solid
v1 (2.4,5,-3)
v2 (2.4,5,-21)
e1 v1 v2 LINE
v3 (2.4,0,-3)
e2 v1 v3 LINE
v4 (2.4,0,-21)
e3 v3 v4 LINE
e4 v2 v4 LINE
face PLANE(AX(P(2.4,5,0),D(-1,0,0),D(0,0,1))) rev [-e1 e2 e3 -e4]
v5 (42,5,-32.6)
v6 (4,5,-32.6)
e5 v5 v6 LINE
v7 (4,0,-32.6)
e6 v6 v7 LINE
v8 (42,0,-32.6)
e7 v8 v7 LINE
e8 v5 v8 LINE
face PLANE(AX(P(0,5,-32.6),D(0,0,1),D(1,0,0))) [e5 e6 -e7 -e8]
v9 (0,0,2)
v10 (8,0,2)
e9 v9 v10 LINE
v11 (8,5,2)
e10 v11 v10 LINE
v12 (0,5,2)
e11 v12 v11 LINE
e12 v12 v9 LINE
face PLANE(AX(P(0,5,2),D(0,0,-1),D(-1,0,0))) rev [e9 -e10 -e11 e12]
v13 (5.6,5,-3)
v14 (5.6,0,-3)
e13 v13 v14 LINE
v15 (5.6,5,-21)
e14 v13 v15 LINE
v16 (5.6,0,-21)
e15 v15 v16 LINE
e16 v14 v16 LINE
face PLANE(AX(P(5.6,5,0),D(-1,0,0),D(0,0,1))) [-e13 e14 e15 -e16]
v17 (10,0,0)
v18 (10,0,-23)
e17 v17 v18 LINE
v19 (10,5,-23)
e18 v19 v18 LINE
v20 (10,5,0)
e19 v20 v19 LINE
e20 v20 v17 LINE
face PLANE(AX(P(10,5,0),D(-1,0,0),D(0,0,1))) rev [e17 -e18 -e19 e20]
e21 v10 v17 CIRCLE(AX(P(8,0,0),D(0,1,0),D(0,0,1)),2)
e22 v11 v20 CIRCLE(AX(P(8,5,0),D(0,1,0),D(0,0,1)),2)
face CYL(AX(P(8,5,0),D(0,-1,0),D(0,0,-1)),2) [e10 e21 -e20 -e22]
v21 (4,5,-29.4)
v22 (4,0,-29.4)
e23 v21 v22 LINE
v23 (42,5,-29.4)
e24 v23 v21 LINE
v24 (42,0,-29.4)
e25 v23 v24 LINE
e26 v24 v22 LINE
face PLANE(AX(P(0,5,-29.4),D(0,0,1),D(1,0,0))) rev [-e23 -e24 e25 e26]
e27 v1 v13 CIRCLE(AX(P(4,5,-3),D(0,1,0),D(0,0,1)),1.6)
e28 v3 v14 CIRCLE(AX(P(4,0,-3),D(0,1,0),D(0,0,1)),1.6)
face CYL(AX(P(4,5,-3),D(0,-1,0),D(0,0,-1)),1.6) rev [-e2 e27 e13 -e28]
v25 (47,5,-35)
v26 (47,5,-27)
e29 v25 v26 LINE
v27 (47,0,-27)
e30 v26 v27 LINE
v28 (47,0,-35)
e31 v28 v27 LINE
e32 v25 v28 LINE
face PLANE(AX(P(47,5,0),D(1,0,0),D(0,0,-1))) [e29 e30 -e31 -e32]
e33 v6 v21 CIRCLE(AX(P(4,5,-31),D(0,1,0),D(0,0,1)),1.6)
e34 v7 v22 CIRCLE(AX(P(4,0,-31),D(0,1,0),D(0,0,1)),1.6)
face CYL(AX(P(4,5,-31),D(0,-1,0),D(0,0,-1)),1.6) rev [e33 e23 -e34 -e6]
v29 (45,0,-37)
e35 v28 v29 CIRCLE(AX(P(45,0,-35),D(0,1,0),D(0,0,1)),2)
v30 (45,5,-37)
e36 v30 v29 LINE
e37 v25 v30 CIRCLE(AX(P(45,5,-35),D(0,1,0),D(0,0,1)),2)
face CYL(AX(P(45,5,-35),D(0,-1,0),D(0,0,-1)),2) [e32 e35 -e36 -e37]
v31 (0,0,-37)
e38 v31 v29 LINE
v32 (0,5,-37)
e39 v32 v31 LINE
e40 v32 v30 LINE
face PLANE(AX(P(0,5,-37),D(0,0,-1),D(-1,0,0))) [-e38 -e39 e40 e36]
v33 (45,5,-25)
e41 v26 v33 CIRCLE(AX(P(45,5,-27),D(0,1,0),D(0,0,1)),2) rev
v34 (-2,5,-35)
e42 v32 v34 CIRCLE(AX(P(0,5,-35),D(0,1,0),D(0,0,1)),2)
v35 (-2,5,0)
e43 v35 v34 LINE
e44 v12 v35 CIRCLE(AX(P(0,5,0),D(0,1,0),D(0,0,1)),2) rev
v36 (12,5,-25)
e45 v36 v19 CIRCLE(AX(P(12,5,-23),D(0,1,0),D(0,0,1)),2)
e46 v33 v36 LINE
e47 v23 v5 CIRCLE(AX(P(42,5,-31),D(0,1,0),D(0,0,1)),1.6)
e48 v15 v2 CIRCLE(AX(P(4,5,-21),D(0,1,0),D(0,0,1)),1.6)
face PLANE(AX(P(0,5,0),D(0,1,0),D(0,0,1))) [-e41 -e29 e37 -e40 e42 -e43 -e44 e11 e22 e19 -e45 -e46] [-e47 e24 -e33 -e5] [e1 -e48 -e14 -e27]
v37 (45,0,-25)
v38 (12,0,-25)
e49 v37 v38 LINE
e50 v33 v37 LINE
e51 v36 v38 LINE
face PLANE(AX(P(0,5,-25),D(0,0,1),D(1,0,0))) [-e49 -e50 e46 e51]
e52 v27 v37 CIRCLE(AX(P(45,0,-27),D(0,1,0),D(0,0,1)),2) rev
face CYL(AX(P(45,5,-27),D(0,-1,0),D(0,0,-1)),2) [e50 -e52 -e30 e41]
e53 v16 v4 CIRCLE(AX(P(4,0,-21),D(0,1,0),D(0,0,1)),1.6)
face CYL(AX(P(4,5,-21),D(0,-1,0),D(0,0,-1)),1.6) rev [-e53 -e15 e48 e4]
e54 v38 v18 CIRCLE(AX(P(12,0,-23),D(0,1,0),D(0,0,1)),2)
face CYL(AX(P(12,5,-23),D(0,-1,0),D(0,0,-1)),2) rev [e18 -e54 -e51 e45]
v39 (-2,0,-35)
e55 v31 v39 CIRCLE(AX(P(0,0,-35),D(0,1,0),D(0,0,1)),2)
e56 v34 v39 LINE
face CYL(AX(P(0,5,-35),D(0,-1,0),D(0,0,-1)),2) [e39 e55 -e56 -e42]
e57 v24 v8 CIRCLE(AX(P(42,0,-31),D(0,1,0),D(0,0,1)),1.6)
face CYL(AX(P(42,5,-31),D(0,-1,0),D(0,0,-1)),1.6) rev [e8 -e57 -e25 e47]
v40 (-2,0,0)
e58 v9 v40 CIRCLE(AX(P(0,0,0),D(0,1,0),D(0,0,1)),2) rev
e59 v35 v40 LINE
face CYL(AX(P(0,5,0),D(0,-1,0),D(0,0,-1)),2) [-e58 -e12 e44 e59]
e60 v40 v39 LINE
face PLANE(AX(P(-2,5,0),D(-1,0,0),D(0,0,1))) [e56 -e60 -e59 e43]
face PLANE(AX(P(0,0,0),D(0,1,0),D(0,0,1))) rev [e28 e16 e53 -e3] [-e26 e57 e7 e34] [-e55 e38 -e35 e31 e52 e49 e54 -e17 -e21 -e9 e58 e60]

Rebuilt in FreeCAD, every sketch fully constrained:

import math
import FreeCAD as App
import Part
import Sketcher
Q = App.Units.Quantity

doc = App.newDocument("Part")
params = doc.addObject("Spreadsheet::Sheet", "Params")
for row, (alias, value) in enumerate([
    ("sketch1_radius", "2 mm"),
    ("sketch1_radius2", "1.6 mm"),
    ("sketch1_width", "8 mm"),
    ("sketch1_width2", "33 mm"),
    ("sketch1_width3", "38 mm"),
    ("pad1_length", "5 mm"),
], start=1):
    params.set(f"A{row}", alias)
    params.set(f"B{row}", "=" + value)
    params.setAlias(f"B{row}", alias)

body = doc.addObject("PartDesign::Body", "Body")

# Sketch on XZ plane
sketch1 = body.newObject("Sketcher::SketchObject", "Sketch")
sketch1.AttachmentSupport = (doc.getObject("XZ_Plane"), [""])
sketch1.MapMode = "FlatFace"
sketch1.addGeometry([
    Part.LineSegment(App.Vector(0, 2, 0), App.Vector(8, 2, 0)),  # 0
    Part.ArcOfCircle(Part.Circle(App.Vector(8, 0, 0), App.Vector(0, 0, 1), 2), math.radians(0), math.radians(90)),  # 1
    Part.LineSegment(App.Vector(10, 0, 0), App.Vector(10, -23, 0)),  # 2
    Part.ArcOfCircle(Part.Circle(App.Vector(12, -23, 0), App.Vector(0, 0, 1), 2), math.radians(-180), math.radians(-90)),  # 3
    Part.LineSegment(App.Vector(12, -25, 0), App.Vector(45, -25, 0)),  # 4
    Part.ArcOfCircle(Part.Circle(App.Vector(45, -27, 0), App.Vector(0, 0, 1), 2), math.radians(0), math.radians(90)),  # 5
    Part.LineSegment(App.Vector(47, -27, 0), App.Vector(47, -35, 0)),  # 6
    Part.ArcOfCircle(Part.Circle(App.Vector(45, -35, 0), App.Vector(0, 0, 1), 2), math.radians(-90), math.radians(0)),  # 7
    Part.LineSegment(App.Vector(45, -37, 0), App.Vector(0, -37, 0)),  # 8
    Part.ArcOfCircle(Part.Circle(App.Vector(0, -35, 0), App.Vector(0, 0, 1), 2), math.radians(-180), math.radians(-90)),  # 9
    Part.LineSegment(App.Vector(-2, -35, 0), App.Vector(-2, 0, 0)),  # 10
    Part.ArcOfCircle(Part.Circle(App.Vector(0, 0, 0), App.Vector(0, 0, 1), 2), math.radians(90), math.radians(180)),  # 11
    Part.ArcOfCircle(Part.Circle(App.Vector(4, -3, 0), App.Vector(0, 0, 1), 1.6), math.radians(0), math.radians(180)),  # 12
    Part.LineSegment(App.Vector(2.4, -3, 0), App.Vector(2.4, -21, 0)),  # 13
    Part.ArcOfCircle(Part.Circle(App.Vector(4, -21, 0), App.Vector(0, 0, 1), 1.6), math.radians(180), math.radians(360)),  # 14
    Part.LineSegment(App.Vector(5.6, -21, 0), App.Vector(5.6, -3, 0)),  # 15
    Part.ArcOfCircle(Part.Circle(App.Vector(42, -31, 0), App.Vector(0, 0, 1), 1.6), math.radians(-90), math.radians(90)),  # 16
    Part.LineSegment(App.Vector(42, -29.4, 0), App.Vector(4, -29.4, 0)),  # 17
    Part.ArcOfCircle(Part.Circle(App.Vector(4, -31, 0), App.Vector(0, 0, 1), 1.6), math.radians(90), math.radians(270)),  # 18
    Part.LineSegment(App.Vector(4, -32.6, 0), App.Vector(42, -32.6, 0)),  # 19
], False)
sketch1.addConstraint([
    Sketcher.Constraint("Tangent", 0, 2, 1, 2),
    Sketcher.Constraint("Tangent", 1, 1, 2, 1),
    Sketcher.Constraint("Tangent", 2, 2, 3, 1),
    Sketcher.Constraint("Tangent", 3, 2, 4, 1),
    Sketcher.Constraint("Tangent", 4, 2, 5, 2),
    Sketcher.Constraint("Tangent", 5, 1, 6, 1),
    Sketcher.Constraint("Tangent", 6, 2, 7, 2),
    Sketcher.Constraint("Tangent", 7, 1, 8, 1),
    Sketcher.Constraint("Tangent", 8, 2, 9, 2),
    Sketcher.Constraint("Tangent", 9, 1, 10, 1),
    Sketcher.Constraint("Tangent", 10, 2, 11, 2),
    Sketcher.Constraint("Tangent", 11, 1, 0, 1),
    Sketcher.Constraint("Tangent", 12, 2, 13, 1),
    Sketcher.Constraint("Tangent", 13, 2, 14, 1),
    Sketcher.Constraint("Tangent", 14, 2, 15, 1),
    Sketcher.Constraint("Tangent", 15, 2, 12, 1),
    Sketcher.Constraint("Tangent", 16, 2, 17, 1),
    Sketcher.Constraint("Tangent", 17, 2, 18, 1),
    Sketcher.Constraint("Tangent", 18, 2, 19, 1),
    Sketcher.Constraint("Tangent", 19, 2, 16, 1),
    Sketcher.Constraint("Horizontal", 0),
    Sketcher.Constraint("Vertical", 2),
    Sketcher.Constraint("Horizontal", 4),
    Sketcher.Constraint("Vertical", 6),
    Sketcher.Constraint("Horizontal", 8),
    Sketcher.Constraint("Vertical", 10),
    Sketcher.Constraint("Vertical", 13),
    Sketcher.Constraint("Vertical", 15),
    Sketcher.Constraint("Horizontal", 17),
    Sketcher.Constraint("Horizontal", 19),
    Sketcher.Constraint("Coincident", 11, 3, -1, 1),
    Sketcher.Constraint("Equal", 1, 3),
    Sketcher.Constraint("Equal", 3, 5),
    Sketcher.Constraint("Equal", 5, 7),
    Sketcher.Constraint("Equal", 7, 9),
    Sketcher.Constraint("Equal", 9, 11),
    Sketcher.Constraint("Equal", 14, 16),
    Sketcher.Constraint("Vertical", 14, 3, 18, 3),
    Sketcher.Constraint("Equal", 0, 6),
    Sketcher.Constraint("Radius", 1, Q("2 mm")),
    Sketcher.Constraint("Radius", 12, Q("1.6 mm")),
    Sketcher.Constraint("DistanceX", 0, 1, 0, 2, Q("8 mm")),
    Sketcher.Constraint("DistanceX", 4, 1, 4, 2, Q("33 mm")),
    Sketcher.Constraint("DistanceX", 17, 2, 17, 1, Q("38 mm")),
    Sketcher.Constraint("DistanceY", 2, 2, 2, 1, Q("23 mm")),
    Sketcher.Constraint("DistanceY", 13, 2, 13, 1, Q("18 mm")),
    Sketcher.Constraint("DistanceX", -1, 1, 12, 3, Q("4 mm")),
    Sketcher.Constraint("DistanceY", 12, 3, -1, 1, Q("3 mm")),
    Sketcher.Constraint("DistanceY", 16, 3, -1, 1, Q("31 mm")),
])
sketch1.setExpression("Constraints[39]", "Params.sketch1_radius")
sketch1.setExpression("Constraints[40]", "Params.sketch1_radius2")
sketch1.setExpression("Constraints[41]", "Params.sketch1_width")
sketch1.setExpression("Constraints[42]", "Params.sketch1_width2")
sketch1.setExpression("Constraints[43]", "Params.sketch1_width3")
pad1 = body.newObject("PartDesign::Pad", "Pad")
pad1.Profile = sketch1
pad1.setExpression("Length", "Params.pad1_length")
pad1.Reversed = True

doc.recompute()
